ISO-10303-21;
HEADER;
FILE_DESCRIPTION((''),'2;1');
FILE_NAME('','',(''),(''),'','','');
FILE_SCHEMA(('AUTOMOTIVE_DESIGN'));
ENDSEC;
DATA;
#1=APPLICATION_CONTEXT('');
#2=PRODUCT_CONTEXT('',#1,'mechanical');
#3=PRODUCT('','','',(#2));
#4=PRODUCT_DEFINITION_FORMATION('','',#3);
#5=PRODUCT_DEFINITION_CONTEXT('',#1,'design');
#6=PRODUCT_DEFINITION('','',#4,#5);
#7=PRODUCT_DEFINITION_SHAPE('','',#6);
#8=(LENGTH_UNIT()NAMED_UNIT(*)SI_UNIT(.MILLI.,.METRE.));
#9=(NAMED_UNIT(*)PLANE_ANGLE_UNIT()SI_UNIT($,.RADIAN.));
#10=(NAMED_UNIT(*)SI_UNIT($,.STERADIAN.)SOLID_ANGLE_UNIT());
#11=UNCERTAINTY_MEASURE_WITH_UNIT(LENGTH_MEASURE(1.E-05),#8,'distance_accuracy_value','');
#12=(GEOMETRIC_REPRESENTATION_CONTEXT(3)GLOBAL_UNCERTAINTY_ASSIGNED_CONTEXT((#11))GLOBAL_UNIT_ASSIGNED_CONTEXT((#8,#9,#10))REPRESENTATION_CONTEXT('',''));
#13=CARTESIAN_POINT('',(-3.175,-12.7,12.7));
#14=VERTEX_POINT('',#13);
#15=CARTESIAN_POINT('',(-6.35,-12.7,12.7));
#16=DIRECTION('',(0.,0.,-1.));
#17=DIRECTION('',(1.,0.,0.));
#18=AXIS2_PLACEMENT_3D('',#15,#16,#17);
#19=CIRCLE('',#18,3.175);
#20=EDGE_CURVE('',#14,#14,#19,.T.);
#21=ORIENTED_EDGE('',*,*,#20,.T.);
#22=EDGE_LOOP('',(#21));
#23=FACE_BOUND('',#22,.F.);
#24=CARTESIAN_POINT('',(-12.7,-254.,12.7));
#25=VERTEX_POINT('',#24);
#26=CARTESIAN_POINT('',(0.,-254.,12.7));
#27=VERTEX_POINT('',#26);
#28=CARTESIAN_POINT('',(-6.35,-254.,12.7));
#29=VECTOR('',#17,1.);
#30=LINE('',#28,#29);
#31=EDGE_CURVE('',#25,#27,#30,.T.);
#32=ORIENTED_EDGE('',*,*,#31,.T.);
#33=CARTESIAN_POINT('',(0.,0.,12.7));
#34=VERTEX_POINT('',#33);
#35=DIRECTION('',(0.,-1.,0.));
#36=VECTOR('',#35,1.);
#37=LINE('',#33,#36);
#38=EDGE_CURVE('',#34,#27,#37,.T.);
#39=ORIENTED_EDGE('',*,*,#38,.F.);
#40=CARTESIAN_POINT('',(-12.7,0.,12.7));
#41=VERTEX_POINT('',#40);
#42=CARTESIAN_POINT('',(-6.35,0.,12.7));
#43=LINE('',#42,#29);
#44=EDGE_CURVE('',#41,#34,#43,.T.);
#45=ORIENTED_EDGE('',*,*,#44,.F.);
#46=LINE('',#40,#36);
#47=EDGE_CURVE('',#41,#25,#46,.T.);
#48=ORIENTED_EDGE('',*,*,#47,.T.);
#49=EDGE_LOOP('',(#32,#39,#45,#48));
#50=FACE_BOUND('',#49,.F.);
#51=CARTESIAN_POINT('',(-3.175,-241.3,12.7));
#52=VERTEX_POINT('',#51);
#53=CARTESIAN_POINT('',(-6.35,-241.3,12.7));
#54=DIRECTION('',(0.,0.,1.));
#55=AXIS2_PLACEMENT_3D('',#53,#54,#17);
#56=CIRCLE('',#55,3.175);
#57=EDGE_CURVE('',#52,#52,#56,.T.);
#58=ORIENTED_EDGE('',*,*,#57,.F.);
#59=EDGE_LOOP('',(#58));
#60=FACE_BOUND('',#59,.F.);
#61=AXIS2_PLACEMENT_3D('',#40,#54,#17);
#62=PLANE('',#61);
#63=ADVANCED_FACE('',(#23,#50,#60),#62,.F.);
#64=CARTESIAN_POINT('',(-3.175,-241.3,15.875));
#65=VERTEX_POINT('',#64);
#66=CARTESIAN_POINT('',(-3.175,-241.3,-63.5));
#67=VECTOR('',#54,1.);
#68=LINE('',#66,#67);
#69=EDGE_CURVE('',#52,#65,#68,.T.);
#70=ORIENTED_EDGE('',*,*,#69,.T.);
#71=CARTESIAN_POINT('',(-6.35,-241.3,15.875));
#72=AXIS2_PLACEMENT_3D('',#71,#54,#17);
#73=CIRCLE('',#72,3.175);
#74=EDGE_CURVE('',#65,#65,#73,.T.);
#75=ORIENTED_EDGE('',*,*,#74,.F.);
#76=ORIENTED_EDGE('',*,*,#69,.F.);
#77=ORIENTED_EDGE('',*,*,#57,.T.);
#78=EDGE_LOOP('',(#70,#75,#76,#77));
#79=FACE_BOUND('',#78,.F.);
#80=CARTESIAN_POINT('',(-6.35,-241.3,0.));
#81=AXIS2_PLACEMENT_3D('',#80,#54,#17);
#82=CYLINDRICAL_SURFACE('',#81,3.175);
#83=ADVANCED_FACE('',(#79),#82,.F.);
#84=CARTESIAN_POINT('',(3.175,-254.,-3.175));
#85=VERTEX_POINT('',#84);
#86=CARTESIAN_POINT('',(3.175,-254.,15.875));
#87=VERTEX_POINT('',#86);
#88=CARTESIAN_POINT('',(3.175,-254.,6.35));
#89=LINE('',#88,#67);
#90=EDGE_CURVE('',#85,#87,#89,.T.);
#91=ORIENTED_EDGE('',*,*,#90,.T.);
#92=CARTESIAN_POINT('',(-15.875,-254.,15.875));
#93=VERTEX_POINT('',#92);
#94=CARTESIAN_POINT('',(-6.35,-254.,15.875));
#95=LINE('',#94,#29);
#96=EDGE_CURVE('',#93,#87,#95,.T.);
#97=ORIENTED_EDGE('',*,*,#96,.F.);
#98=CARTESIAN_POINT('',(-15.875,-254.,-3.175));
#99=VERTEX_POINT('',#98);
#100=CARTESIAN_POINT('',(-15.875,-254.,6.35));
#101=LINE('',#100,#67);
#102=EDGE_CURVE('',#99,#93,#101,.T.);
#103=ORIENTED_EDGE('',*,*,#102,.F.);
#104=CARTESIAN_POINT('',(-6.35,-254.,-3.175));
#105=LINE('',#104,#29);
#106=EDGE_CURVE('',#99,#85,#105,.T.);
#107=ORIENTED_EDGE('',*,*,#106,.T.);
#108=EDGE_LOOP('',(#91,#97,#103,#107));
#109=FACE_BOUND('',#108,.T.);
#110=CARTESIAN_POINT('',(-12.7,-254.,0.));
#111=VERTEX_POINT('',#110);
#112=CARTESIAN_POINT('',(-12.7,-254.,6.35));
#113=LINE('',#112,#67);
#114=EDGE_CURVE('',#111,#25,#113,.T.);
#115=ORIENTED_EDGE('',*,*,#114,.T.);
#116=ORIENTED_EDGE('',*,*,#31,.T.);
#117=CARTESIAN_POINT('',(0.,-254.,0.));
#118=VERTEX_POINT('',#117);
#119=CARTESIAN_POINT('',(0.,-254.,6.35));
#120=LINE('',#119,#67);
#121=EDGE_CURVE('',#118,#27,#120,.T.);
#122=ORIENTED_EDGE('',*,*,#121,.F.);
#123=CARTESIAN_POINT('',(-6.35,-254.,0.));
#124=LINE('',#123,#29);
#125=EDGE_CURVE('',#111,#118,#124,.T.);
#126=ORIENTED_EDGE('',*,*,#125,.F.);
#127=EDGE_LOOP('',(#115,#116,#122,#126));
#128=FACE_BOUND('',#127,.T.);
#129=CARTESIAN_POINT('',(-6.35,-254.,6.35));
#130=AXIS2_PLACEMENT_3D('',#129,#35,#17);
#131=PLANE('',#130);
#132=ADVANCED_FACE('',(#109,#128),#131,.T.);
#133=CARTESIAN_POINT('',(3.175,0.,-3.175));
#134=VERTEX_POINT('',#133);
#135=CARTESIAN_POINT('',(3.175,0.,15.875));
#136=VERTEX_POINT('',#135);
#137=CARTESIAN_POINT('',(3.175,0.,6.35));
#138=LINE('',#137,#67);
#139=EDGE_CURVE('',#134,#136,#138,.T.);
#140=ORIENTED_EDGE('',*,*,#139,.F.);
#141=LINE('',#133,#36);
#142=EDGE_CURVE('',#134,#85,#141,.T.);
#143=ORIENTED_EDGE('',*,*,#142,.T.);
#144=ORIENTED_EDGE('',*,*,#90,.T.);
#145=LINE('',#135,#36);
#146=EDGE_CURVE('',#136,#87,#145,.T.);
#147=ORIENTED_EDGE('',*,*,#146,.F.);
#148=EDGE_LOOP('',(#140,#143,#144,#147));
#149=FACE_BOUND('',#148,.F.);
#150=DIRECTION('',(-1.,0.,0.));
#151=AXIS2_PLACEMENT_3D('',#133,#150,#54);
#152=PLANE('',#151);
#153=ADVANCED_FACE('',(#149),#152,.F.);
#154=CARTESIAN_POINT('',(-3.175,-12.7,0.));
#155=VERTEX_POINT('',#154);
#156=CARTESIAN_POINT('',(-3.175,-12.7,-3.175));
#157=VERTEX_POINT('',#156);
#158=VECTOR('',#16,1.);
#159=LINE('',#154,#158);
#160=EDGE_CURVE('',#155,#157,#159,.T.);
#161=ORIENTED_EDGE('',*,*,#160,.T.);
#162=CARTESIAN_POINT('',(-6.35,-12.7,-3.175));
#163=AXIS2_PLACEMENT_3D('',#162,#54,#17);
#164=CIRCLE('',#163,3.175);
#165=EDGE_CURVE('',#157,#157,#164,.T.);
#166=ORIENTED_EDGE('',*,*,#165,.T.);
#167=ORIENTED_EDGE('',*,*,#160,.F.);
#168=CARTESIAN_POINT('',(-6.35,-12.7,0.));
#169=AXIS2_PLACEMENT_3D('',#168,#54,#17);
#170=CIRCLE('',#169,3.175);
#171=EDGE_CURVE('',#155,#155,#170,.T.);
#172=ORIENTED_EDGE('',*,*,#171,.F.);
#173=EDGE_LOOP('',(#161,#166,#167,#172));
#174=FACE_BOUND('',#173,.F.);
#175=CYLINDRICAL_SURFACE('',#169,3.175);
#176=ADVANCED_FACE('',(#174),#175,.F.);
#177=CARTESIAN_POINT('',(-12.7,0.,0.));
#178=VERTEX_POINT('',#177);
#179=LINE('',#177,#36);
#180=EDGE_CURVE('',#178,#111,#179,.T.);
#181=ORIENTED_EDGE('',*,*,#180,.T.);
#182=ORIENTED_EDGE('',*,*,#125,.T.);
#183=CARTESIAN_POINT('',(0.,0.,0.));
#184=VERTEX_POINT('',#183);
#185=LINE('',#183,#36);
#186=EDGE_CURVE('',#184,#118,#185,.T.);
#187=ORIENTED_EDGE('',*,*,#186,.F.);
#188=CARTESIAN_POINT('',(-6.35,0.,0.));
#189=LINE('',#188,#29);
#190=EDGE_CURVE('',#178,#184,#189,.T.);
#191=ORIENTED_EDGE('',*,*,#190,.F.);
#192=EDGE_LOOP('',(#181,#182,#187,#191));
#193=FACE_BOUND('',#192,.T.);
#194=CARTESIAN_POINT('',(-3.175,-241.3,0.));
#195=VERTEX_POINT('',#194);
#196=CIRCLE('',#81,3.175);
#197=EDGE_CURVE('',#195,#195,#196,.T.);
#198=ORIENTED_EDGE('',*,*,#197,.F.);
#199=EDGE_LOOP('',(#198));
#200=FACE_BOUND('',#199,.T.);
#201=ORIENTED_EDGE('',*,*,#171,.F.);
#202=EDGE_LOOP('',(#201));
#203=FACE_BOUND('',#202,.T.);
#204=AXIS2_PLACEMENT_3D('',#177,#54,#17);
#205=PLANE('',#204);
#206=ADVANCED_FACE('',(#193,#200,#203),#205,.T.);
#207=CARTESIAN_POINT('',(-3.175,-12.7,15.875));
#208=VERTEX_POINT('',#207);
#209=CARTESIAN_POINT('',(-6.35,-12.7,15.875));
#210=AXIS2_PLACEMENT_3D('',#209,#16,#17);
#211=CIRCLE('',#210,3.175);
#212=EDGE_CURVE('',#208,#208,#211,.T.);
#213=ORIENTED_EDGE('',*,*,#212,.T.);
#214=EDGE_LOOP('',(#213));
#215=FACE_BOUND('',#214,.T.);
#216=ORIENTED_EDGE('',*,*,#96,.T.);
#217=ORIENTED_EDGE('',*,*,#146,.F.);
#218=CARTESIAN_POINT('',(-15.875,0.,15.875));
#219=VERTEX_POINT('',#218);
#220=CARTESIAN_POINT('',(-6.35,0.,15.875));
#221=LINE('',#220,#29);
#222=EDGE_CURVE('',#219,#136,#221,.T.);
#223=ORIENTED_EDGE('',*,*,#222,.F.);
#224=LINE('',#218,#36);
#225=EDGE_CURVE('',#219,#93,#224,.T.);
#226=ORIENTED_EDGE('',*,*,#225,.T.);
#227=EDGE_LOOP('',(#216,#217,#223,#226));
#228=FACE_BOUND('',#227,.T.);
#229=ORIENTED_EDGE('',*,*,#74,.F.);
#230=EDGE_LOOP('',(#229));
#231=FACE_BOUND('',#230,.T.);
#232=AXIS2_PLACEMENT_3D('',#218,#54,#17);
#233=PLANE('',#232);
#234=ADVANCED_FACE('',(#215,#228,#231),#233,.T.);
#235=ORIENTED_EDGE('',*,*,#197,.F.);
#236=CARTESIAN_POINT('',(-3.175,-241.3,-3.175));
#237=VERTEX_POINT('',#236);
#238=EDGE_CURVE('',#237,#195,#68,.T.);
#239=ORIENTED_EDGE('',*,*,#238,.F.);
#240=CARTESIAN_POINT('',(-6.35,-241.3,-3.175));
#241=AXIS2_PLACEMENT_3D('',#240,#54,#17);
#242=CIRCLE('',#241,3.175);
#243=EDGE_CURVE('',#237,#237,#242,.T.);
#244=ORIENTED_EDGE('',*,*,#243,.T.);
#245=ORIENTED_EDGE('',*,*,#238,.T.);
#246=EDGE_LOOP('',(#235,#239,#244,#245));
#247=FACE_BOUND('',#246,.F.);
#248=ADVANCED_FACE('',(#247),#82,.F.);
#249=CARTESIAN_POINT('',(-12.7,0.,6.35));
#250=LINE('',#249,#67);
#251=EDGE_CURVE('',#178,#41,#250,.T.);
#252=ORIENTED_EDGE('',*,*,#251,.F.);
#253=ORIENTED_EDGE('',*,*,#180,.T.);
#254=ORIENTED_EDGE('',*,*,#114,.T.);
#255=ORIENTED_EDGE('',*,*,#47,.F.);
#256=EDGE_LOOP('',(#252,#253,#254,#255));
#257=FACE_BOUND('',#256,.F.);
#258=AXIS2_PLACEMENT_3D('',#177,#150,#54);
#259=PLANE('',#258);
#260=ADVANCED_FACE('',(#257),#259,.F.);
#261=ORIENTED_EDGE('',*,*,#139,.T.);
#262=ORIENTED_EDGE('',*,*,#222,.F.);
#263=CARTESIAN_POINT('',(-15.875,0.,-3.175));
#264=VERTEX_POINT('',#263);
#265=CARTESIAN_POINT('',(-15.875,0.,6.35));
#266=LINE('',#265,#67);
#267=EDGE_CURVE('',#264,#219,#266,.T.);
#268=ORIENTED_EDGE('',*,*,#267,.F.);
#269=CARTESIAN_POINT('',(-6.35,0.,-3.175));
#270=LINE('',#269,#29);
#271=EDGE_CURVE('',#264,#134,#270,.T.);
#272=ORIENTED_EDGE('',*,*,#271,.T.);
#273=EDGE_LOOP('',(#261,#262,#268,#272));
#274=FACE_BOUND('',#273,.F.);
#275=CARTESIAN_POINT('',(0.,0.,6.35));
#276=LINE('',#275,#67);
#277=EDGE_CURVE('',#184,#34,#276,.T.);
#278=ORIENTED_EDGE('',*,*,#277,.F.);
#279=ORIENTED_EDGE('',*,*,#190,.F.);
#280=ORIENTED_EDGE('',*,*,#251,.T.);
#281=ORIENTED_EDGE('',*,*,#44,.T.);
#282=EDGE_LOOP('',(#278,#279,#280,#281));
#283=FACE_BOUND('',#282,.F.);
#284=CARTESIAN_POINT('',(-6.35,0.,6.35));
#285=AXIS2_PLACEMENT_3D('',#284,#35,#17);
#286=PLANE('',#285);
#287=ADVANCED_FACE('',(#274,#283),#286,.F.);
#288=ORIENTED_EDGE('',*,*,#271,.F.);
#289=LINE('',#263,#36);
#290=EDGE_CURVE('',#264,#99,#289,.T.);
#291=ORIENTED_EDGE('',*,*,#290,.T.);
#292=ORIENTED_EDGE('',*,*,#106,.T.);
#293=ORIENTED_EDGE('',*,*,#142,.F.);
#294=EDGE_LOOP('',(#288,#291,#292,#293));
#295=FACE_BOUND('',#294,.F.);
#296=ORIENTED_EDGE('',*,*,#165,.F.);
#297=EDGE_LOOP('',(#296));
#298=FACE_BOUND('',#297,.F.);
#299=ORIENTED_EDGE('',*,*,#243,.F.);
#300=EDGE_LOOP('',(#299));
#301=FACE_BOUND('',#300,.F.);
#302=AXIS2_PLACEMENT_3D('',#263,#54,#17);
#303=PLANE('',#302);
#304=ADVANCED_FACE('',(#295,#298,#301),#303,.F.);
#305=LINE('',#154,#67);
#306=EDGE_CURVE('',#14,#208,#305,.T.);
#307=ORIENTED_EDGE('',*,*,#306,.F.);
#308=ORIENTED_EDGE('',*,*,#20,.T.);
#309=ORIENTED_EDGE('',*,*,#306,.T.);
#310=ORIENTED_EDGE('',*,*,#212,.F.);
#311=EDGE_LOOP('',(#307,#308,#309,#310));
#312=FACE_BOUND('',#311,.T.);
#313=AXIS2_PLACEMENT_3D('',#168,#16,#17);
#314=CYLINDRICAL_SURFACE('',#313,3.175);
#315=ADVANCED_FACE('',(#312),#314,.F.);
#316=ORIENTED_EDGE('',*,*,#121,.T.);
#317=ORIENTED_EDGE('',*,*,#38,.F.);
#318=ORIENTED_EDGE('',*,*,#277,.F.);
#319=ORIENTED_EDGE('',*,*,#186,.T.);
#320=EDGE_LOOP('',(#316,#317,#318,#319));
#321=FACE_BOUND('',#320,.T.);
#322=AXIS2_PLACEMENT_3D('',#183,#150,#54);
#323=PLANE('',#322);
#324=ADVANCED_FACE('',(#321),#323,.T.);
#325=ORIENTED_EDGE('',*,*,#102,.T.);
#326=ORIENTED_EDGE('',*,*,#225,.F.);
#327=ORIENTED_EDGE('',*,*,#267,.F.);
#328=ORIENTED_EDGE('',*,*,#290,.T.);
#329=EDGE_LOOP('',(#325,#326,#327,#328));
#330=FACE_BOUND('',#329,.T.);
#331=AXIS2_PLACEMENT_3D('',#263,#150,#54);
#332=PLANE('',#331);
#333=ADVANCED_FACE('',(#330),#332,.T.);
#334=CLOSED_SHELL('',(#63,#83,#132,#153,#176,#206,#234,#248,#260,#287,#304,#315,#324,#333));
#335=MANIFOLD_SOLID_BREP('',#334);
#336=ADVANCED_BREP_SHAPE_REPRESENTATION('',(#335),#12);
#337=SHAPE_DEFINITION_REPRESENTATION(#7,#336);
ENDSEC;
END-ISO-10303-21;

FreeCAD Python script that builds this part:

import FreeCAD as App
import Part
import Sketcher
from FreeCAD import Vector
Q = App.Units.Quantity

doc = App.newDocument("Part")
params = doc.addObject("Spreadsheet::Sheet", "Params")
for row, (alias, value) in enumerate([
    ("sketch1_width", "0.5 in"),
    ("sketch1_width2", "0.75 in"),
    ("pad1_length", "10 in"),
    ("sketch2_diameter", "0.25 in"),
    ("pocket1_length", "5 in"),
], start=1):
    params.set(f"A{row}", alias)
    params.set(f"B{row}", "=" + value)
    params.setAlias(f"B{row}", alias)

body = doc.addObject("PartDesign::Body", "Body")

# Sketch on XZ plane
sketch1 = body.newObject("Sketcher::SketchObject", "Sketch")
sketch1.AttachmentSupport = (doc.getObject("XZ_Plane"), [""])
sketch1.MapMode = "FlatFace"
sketch1.addGeometry([
    Part.LineSegment(Vector(-16, 16, 0), Vector(-16, -3, 0)),  # 0
    Part.LineSegment(Vector(-16, -3, 0), Vector(3, -3, 0)),  # 1
    Part.LineSegment(Vector(3, -3, 0), Vector(3, 16, 0)),  # 2
    Part.LineSegment(Vector(3, 16, 0), Vector(-16, 16, 0)),  # 3
    Part.LineSegment(Vector(0, 0, 0), Vector(-13, 0, 0)),  # 4
    Part.LineSegment(Vector(-13, 0, 0), Vector(-13, 13, 0)),  # 5
    Part.LineSegment(Vector(-13, 13, 0), Vector(0, 13, 0)),  # 6
    Part.LineSegment(Vector(0, 13, 0), Vector(0, 0, 0)),  # 7
], False)
sketch1.addConstraint([
    Sketcher.Constraint("Coincident", 0, 2, 1, 1),
    Sketcher.Constraint("Coincident", 1, 2, 2, 1),
    Sketcher.Constraint("Coincident", 2, 2, 3, 1),
    Sketcher.Constraint("Coincident", 3, 2, 0, 1),
    Sketcher.Constraint("Coincident", 4, 2, 5, 1),
    Sketcher.Constraint("Coincident", 5, 2, 6, 1),
    Sketcher.Constraint("Coincident", 6, 2, 7, 1),
    Sketcher.Constraint("Coincident", 7, 2, 4, 1),
    Sketcher.Constraint("Vertical", 0),
    Sketcher.Constraint("Horizontal", 1),
    Sketcher.Constraint("Vertical", 2),
    Sketcher.Constraint("Horizontal", 3),
    Sketcher.Constraint("Horizontal", 4),
    Sketcher.Constraint("Vertical", 5),
    Sketcher.Constraint("Horizontal", 6),
    Sketcher.Constraint("Vertical", 7),
    Sketcher.Constraint("Coincident", 7, 2, -1, 1),
    Sketcher.Constraint("Equal", 3, 0),
    Sketcher.Constraint("Equal", 6, 5),
    Sketcher.Constraint("DistanceX", 4, 2, 4, 1, Q("0.5 in")),
    Sketcher.Constraint("DistanceX", 1, 1, 1, 2, Q("0.75 in")),
    Sketcher.Constraint("DistanceX", 0, 2, -1, 1, Q("0.625 in")),
    Sketcher.Constraint("DistanceY", 0, 2, -1, 1, Q("0.125 in")),
])
sketch1.setExpression("Constraints[19]", "Params.sketch1_width")
sketch1.setExpression("Constraints[20]", "Params.sketch1_width2")
pad1 = body.newObject("PartDesign::Pad", "Pad")
pad1.Profile = sketch1
pad1.setExpression("Length", "Params.pad1_length")

# Sketch on XY plane
sketch2 = body.newObject("Sketcher::SketchObject", "Sketch001")
sketch2.AttachmentSupport = (doc.getObject("XY_Plane"), [""])
sketch2.MapMode = "FlatFace"
sketch2.addGeometry([
    Part.Circle(Vector(-6.3, -12.7, 0), Vector(0, 0, 1), 3.2),
    Part.Circle(Vector(-6.3, -241.3, 0), Vector(0, 0, 1), 3.2),
], False)
sketch2.addConstraint([
    Sketcher.Constraint("Equal", 0, 1),
    Sketcher.Constraint("Vertical", 0, 3, 1, 3),
    Sketcher.Constraint("Diameter", 0, Q("0.25 in")),
    Sketcher.Constraint("DistanceY", 1, 3, 0, 3, Q("9 in")),
    Sketcher.Constraint("DistanceY", 0, 3, -1, 1, Q("0.5 in")),
    Sketcher.Constraint("DistanceX", 0, 3, -1, 1, Q("0.25 in")),
])
sketch2.setExpression("Constraints[2]", "Params.sketch2_diameter")
pocket1 = body.newObject("PartDesign::Pocket", "Pocket")
pocket1.Profile = sketch2
pocket1.setExpression("Length", "Params.pocket1_length")
pocket1.Midplane = True

doc.recompute()
